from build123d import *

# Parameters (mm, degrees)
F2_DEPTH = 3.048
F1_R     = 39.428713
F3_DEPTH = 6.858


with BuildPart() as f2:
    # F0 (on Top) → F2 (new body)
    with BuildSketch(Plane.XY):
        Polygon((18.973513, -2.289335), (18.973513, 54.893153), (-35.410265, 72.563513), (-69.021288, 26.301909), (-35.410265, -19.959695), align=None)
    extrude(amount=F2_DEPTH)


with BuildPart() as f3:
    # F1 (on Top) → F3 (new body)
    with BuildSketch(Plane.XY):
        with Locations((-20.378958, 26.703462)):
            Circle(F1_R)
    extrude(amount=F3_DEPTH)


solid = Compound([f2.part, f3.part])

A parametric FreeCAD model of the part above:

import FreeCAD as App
import Part
import Sketcher
from FreeCAD import Vector
Q = App.Units.Quantity

doc = App.newDocument("Part")
body = doc.addObject("PartDesign::Body", "Body")

# Sketch on XY plane
sketch1 = body.newObject("Sketcher::SketchObject", "Sketch")
sketch1.AttachmentSupport = (doc.getObject("XY_Plane"), [""])
sketch1.MapMode = "FlatFace"
sketch1.addGeometry(Part.LineSegment(Vector(19, -2, 0), Vector(19, 55, 0)), False)
sketch1.addGeometry(Part.LineSegment(Vector(19, 55, 0), Vector(-35, 73, 0)), False)
sketch1.addGeometry(Part.LineSegment(Vector(-35, 73, 0), Vector(-69, 26, 0)), False)
sketch1.addGeometry(Part.LineSegment(Vector(-69, 26, 0), Vector(-35, -20, 0)), False)
sketch1.addGeometry(Part.LineSegment(Vector(-35, -20, 0), Vector(19, -2, 0)), False)
sketch1.addConstraint(Sketcher.Constraint("Coincident", 0, 2, 1, 1))
sketch1.addConstraint(Sketcher.Constraint("Coincident", 1, 2, 2, 1))
sketch1.addConstraint(Sketcher.Constraint("Coincident", 2, 2, 3, 1))
sketch1.addConstraint(Sketcher.Constraint("Coincident", 3, 2, 4, 1))
sketch1.addConstraint(Sketcher.Constraint("Coincident", 4, 2, 0, 1))
sketch1.addConstraint(Sketcher.Constraint("Vertical", 0))
sketch1.addConstraint(Sketcher.Constraint("Vertical", 1, 2, 3, 2))
sketch1.addConstraint(Sketcher.Constraint("Equal", 1, 2))
sketch1.addConstraint(Sketcher.Constraint("Equal", 2, 3))
sketch1.addConstraint(Sketcher.Constraint("Equal", 3, 4))
sketch1.addConstraint(Sketcher.Constraint("Angle", 1, Q("162.000001 deg")))
sketch1.addConstraint(Sketcher.Constraint("Angle", 2, Q("-126 deg")))
sketch1.addConstraint(Sketcher.Constraint("DistanceX", 2, 2, 0, 2, 87.994801))
sketch1.addConstraint(Sketcher.Constraint("DistanceX", 2, 2, -1, 1, 69.021288))
sketch1.addConstraint(Sketcher.Constraint("DistanceY", -1, 1, 2, 2, 26.301909))
pad1 = body.newObject("PartDesign::Pad", "Pad")
pad1.Profile = sketch1
pad1.Length = Q("0.12 in")
body2 = doc.addObject("PartDesign::Body", "Body001")

# Sketch on XY plane
sketch2 = body2.newObject("Sketcher::SketchObject", "Sketch001")
sketch2.AttachmentSupport = (doc.getObject("XY_Plane001"), [""])
sketch2.MapMode = "FlatFace"
sketch2.addGeometry(Part.Circle(Vector(-20, 27, 0), Vector(0, 0, 1), 39), False)
sketch2.addConstraint(Sketcher.Constraint("Diameter", 0, 78.857426))
sketch2.addConstraint(Sketcher.Constraint("DistanceX", 0, 3, -1, 1, 20.378958))
sketch2.addConstraint(Sketcher.Constraint("DistanceY", -1, 1, 0, 3, 26.703462))
pad2 = body2.newObject("PartDesign::Pad", "Pad001")
pad2.Profile = sketch2
pad2.Length = Q("0.27 in")

doc.recompute()
